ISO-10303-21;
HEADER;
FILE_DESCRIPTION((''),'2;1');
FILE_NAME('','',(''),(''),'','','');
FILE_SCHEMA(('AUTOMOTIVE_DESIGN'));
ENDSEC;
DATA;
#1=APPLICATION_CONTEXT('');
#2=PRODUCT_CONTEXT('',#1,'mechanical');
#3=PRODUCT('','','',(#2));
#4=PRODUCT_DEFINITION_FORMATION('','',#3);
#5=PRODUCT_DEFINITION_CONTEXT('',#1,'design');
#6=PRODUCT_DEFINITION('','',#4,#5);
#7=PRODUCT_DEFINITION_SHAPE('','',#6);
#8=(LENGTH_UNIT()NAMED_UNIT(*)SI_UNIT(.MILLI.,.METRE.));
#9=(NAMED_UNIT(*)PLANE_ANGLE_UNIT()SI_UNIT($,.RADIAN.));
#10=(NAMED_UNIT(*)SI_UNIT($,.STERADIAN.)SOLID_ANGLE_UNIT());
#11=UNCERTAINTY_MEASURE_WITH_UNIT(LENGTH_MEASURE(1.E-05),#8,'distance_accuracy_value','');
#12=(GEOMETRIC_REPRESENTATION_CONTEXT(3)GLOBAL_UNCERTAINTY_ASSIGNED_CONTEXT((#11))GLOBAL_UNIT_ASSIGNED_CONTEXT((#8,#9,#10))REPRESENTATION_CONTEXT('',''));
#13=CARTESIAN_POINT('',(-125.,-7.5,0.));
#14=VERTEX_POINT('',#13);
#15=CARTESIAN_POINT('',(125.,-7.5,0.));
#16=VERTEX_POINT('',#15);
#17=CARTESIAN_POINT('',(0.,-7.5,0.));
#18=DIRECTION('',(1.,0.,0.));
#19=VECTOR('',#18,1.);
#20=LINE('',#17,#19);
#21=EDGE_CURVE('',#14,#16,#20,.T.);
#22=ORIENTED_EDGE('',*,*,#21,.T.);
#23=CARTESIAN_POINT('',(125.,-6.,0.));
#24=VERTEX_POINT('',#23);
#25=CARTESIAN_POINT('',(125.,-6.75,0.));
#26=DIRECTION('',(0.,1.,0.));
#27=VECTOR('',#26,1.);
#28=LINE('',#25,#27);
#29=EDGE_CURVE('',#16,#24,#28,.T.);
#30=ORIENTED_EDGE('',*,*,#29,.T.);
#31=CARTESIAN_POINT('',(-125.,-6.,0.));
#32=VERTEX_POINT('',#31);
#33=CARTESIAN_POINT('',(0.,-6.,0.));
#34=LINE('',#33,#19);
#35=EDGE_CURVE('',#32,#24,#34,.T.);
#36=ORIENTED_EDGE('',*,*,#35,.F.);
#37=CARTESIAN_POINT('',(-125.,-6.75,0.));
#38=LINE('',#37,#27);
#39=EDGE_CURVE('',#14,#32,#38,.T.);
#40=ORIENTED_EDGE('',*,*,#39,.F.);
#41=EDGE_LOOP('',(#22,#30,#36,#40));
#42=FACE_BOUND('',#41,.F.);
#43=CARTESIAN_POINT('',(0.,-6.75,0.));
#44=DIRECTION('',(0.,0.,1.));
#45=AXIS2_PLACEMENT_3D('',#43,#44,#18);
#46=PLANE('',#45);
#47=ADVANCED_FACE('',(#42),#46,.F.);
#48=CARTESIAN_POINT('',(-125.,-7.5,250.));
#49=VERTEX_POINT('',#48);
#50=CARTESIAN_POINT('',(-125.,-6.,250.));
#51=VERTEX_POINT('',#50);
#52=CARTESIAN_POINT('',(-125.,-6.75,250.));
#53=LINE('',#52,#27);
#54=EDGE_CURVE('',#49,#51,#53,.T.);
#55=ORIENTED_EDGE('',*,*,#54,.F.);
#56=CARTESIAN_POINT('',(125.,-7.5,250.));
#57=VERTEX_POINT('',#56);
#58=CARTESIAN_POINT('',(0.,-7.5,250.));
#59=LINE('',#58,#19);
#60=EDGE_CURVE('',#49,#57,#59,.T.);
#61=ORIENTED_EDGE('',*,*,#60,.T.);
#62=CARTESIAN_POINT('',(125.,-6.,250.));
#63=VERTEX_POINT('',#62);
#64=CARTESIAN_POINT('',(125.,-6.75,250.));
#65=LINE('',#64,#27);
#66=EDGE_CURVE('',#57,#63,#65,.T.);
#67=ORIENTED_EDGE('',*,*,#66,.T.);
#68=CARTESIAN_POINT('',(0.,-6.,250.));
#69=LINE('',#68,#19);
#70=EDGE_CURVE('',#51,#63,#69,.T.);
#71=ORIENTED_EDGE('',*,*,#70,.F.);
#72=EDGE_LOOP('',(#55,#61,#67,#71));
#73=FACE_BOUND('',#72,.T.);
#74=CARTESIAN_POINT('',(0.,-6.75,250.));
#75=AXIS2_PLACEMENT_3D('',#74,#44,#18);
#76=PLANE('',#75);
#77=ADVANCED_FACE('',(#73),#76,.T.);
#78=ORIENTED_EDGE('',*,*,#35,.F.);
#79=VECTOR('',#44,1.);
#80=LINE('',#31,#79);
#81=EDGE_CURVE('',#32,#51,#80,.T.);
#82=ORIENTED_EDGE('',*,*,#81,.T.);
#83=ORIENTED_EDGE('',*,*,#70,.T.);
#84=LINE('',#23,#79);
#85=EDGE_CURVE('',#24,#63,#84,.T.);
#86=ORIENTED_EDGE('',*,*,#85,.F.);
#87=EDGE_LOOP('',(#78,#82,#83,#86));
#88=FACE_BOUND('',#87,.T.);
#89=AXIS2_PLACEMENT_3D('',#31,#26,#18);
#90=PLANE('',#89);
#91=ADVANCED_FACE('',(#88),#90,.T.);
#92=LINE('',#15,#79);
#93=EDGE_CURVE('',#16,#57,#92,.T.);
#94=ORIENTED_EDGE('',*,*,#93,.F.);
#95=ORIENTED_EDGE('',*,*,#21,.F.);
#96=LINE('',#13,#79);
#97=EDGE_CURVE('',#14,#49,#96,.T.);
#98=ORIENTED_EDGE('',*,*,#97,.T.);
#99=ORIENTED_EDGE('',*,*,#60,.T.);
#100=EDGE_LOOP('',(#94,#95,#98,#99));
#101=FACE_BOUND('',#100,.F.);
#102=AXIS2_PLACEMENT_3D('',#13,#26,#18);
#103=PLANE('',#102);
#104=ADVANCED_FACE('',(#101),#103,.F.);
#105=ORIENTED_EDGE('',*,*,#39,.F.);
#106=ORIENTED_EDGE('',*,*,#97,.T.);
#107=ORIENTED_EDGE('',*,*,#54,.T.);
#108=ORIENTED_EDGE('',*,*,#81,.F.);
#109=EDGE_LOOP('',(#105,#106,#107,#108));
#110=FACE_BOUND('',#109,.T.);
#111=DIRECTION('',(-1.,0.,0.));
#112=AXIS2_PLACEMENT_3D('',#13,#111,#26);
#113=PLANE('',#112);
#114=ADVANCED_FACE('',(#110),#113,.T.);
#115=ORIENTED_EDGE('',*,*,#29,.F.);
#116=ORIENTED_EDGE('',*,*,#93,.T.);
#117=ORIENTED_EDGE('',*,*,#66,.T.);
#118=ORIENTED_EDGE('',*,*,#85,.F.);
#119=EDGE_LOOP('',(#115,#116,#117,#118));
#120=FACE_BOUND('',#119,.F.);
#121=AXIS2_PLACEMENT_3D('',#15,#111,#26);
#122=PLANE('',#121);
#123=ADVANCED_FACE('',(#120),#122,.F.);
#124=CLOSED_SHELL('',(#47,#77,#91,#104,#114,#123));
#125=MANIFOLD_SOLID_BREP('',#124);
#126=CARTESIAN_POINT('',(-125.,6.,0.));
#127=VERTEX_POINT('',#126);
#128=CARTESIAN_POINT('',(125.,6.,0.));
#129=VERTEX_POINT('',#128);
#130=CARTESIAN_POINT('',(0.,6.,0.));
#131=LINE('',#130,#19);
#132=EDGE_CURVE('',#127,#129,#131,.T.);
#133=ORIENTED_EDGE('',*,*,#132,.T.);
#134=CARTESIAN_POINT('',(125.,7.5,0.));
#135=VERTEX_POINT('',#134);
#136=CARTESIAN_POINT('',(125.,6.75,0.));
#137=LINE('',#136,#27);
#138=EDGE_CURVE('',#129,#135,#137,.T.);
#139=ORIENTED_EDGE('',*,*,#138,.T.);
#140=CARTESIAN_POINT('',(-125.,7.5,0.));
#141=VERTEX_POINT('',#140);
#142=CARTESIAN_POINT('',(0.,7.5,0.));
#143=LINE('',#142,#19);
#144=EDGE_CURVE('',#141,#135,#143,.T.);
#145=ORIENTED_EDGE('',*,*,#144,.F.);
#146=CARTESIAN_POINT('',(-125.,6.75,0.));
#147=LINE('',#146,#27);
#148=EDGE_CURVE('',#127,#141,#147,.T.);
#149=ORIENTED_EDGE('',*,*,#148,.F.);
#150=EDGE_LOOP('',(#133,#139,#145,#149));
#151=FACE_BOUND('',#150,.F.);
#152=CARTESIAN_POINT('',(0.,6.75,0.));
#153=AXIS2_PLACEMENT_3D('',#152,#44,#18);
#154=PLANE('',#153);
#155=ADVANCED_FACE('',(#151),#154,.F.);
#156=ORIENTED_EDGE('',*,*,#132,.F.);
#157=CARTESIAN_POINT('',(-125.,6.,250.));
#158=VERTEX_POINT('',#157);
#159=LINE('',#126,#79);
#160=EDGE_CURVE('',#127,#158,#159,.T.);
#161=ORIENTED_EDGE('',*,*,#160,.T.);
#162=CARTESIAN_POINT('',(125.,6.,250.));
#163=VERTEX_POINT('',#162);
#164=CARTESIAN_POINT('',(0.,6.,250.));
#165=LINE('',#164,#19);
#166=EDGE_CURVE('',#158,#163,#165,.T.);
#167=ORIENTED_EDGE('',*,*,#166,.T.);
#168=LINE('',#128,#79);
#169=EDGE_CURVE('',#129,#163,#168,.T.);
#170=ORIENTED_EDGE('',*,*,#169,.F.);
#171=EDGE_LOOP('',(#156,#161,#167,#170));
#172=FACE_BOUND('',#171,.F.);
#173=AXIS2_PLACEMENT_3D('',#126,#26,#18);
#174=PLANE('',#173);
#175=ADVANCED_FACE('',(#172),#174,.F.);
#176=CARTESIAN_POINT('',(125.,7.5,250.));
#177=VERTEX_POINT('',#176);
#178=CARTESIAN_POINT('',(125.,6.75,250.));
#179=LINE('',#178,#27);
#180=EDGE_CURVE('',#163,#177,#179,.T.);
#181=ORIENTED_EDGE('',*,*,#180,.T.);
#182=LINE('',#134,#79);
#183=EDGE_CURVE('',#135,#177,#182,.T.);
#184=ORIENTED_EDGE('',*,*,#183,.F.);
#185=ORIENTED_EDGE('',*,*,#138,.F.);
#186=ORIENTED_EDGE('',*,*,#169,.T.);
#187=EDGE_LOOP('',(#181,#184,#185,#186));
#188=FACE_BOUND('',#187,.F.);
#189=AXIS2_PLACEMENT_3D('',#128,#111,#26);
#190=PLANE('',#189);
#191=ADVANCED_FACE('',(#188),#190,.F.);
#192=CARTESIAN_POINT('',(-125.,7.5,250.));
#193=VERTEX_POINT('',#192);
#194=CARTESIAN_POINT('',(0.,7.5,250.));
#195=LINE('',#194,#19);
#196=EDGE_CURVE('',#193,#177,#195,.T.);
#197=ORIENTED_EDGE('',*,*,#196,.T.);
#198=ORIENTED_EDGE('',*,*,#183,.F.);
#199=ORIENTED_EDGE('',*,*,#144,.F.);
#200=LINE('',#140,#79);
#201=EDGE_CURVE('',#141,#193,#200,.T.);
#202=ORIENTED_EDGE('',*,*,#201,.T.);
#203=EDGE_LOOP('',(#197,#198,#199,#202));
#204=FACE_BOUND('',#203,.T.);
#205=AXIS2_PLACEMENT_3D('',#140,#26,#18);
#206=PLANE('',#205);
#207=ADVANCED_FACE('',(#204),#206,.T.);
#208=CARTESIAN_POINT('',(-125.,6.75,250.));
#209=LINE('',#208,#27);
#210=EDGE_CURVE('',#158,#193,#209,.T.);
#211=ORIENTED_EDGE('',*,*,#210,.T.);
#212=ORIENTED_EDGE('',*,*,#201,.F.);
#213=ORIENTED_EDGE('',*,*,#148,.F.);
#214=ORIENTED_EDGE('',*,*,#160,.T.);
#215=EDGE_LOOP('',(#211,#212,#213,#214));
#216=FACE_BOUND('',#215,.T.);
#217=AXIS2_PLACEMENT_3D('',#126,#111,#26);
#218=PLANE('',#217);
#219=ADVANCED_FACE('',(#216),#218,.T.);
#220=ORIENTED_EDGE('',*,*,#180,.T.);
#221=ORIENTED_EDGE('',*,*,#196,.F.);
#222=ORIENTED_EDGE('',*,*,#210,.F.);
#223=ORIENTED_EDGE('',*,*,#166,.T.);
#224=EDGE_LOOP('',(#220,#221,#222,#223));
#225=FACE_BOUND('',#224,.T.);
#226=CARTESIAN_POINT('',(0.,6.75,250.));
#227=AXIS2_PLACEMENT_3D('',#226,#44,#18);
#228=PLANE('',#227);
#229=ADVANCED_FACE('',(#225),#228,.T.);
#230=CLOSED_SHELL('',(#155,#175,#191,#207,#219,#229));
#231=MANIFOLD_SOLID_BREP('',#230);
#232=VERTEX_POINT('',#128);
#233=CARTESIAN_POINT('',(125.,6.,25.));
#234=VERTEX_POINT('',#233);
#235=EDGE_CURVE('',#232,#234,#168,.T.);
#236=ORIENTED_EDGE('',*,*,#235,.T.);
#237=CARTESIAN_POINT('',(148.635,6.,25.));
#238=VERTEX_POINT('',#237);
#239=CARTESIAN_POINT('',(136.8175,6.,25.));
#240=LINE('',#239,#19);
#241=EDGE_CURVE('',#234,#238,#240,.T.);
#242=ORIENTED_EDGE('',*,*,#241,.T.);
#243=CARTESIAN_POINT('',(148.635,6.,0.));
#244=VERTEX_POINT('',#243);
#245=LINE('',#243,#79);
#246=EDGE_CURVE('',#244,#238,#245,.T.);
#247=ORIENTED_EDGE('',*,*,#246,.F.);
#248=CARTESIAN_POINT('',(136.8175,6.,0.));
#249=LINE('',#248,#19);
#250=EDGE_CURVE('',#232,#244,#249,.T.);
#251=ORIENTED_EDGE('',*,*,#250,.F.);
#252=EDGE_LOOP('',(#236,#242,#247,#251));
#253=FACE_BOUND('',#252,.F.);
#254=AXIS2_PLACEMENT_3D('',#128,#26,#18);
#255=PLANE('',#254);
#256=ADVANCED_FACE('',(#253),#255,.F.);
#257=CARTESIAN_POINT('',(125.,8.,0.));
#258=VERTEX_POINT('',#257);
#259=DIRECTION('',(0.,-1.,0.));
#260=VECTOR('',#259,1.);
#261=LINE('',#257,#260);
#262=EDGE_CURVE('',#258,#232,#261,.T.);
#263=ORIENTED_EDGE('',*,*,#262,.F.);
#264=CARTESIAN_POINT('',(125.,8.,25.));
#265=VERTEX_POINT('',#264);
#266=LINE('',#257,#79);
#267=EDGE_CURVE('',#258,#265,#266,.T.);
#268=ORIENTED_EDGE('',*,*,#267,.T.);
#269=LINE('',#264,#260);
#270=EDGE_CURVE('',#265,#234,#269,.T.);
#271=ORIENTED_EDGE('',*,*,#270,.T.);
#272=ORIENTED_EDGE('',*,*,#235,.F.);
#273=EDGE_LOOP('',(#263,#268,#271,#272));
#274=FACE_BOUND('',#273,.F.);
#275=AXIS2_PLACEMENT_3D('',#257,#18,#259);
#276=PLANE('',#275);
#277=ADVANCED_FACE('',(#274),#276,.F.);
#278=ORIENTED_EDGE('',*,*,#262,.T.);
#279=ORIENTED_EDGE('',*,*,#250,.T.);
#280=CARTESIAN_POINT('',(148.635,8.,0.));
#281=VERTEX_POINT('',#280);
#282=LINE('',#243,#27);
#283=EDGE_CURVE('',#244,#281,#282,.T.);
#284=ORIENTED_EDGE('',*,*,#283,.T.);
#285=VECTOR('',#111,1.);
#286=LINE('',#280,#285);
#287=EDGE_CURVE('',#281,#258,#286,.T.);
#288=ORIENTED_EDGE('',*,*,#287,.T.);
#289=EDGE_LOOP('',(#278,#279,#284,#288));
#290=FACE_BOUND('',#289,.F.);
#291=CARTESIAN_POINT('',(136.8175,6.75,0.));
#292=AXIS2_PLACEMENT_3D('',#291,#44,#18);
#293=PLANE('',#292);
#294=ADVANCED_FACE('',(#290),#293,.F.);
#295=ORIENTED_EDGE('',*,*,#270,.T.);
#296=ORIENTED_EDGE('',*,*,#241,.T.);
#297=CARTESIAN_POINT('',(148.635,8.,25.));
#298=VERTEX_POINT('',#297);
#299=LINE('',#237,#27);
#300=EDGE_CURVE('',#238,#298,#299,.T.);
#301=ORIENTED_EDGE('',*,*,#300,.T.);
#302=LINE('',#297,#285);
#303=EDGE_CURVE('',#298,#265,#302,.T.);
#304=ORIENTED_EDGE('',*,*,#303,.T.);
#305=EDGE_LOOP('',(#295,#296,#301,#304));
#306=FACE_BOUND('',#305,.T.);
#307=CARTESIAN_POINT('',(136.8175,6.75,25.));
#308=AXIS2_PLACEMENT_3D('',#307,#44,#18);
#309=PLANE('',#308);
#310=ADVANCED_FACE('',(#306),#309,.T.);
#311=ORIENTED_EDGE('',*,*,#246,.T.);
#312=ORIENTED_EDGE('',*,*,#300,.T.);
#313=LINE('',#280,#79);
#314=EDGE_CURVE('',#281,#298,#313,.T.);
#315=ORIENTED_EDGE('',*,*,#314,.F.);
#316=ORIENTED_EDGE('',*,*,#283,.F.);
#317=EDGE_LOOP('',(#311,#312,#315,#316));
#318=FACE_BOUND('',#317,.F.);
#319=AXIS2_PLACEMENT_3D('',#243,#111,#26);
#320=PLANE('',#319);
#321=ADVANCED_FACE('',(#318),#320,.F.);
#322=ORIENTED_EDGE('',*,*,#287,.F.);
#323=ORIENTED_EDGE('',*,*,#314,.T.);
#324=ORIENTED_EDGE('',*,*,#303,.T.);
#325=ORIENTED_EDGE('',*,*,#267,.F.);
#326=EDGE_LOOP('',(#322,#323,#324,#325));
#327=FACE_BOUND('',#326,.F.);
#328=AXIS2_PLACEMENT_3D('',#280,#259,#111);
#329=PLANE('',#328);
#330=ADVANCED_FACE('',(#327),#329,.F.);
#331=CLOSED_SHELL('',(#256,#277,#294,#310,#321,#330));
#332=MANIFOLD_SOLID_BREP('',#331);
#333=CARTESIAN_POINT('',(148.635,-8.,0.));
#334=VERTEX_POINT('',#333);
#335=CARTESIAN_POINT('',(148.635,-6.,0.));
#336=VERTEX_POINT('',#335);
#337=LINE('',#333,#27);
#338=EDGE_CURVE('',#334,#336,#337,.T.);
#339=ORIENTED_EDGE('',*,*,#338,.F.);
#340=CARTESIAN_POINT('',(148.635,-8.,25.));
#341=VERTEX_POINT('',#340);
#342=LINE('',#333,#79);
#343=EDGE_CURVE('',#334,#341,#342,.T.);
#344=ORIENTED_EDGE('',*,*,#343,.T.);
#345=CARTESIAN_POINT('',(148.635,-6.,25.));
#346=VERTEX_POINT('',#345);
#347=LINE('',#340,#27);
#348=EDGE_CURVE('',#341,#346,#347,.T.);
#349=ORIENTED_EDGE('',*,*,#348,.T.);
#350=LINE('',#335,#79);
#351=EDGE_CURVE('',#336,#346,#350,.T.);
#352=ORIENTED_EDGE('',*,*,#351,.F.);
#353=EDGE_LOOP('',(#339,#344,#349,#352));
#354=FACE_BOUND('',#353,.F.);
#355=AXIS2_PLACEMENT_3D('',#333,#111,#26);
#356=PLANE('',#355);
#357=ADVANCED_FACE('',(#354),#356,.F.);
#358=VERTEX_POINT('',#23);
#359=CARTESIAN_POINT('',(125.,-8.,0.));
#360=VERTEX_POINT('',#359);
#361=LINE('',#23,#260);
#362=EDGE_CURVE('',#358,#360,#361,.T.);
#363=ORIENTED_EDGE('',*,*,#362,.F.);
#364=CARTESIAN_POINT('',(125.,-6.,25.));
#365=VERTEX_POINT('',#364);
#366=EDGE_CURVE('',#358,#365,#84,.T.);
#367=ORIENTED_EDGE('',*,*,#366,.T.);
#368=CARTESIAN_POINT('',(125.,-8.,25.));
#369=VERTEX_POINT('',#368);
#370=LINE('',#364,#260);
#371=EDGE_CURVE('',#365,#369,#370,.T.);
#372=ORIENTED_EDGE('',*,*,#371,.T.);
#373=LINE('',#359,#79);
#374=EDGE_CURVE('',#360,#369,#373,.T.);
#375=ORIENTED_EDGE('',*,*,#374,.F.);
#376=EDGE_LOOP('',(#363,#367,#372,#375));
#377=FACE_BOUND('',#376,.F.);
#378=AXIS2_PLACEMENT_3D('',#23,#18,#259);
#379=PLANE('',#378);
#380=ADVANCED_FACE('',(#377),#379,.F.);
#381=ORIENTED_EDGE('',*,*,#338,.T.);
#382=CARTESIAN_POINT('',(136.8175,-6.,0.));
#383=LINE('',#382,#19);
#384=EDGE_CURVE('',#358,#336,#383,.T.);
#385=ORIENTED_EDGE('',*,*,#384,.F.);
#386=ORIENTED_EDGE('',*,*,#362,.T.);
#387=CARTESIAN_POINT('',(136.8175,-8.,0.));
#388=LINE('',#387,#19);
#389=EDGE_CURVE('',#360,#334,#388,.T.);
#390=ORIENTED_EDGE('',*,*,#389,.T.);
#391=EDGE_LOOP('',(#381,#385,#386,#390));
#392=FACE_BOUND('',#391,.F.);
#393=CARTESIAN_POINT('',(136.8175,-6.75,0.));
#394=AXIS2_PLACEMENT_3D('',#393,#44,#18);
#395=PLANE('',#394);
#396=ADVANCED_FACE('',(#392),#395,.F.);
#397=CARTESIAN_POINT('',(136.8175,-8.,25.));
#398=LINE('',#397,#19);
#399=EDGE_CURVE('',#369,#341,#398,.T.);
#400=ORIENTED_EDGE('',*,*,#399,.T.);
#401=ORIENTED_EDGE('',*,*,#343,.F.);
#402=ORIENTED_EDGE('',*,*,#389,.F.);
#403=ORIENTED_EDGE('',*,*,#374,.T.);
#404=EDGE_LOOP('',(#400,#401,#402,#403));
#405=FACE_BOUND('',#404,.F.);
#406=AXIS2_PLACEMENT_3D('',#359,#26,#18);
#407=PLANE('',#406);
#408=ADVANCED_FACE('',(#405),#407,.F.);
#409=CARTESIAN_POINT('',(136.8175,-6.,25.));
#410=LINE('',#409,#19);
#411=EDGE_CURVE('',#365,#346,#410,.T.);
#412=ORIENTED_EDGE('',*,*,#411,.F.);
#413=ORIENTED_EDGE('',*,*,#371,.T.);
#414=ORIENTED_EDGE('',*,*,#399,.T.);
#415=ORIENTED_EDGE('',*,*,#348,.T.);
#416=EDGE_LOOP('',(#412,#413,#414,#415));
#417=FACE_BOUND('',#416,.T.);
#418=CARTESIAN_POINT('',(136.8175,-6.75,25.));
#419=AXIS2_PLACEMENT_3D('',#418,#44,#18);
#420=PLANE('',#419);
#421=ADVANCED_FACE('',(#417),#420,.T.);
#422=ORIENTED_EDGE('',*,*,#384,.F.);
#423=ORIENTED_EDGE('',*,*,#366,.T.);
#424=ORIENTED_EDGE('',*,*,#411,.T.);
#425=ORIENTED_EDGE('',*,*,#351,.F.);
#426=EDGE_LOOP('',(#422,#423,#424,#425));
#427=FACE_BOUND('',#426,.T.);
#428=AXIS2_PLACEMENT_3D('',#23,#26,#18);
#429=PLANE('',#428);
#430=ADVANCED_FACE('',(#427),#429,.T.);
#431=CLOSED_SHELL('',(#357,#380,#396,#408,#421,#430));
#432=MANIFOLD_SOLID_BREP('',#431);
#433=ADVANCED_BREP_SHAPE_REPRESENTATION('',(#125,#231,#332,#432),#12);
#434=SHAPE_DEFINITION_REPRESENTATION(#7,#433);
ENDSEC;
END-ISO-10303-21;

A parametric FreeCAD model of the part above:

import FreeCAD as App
import Part
import Sketcher
Q = App.Units.Quantity

doc = App.newDocument("Part")
body = doc.addObject("PartDesign::Body", "Body")
body.AllowCompound = True

sketch1 = body.newObject("Sketcher::SketchObject", "Sketch")
sketch1.AttachmentSupport = (doc.getObject("XY_Plane"), [""])
sketch1.MapMode = "FlatFace"
sketch1.addGeometry(Part.LineSegment(App.Vector(-125, -6, 0), App.Vector(-125, -7.5, 0)), False)
sketch1.addGeometry(Part.LineSegment(App.Vector(-125, -7.5, 0), App.Vector(125, -7.5, 0)), False)
sketch1.addGeometry(Part.LineSegment(App.Vector(125, -7.5, 0), App.Vector(125, -6, 0)), False)
sketch1.addGeometry(Part.LineSegment(App.Vector(125, -6, 0), App.Vector(-125, -6, 0)), False)
sketch1.addGeometry(Part.LineSegment(App.Vector(-125, 7.5, 0), App.Vector(-125, 6, 0)), False)
sketch1.addGeometry(Part.LineSegment(App.Vector(-125, 6, 0), App.Vector(125, 6, 0)), False)
sketch1.addGeometry(Part.LineSegment(App.Vector(125, 6, 0), App.Vector(125, 7.5, 0)), False)
sketch1.addGeometry(Part.LineSegment(App.Vector(125, 7.5, 0), App.Vector(-125, 7.5, 0)), False)
sketch1.addConstraint(Sketcher.Constraint("Coincident", 0, 2, 1, 1))
sketch1.addConstraint(Sketcher.Constraint("Coincident", 1, 2, 2, 1))
sketch1.addConstraint(Sketcher.Constraint("Coincident", 2, 2, 3, 1))
sketch1.addConstraint(Sketcher.Constraint("Coincident", 3, 2, 0, 1))
sketch1.addConstraint(Sketcher.Constraint("Coincident", 4, 2, 5, 1))
sketch1.addConstraint(Sketcher.Constraint("Coincident", 5, 2, 6, 1))
sketch1.addConstraint(Sketcher.Constraint("Coincident", 6, 2, 7, 1))
sketch1.addConstraint(Sketcher.Constraint("Coincident", 7, 2, 4, 1))
sketch1.addConstraint(Sketcher.Constraint("Vertical", 0))
sketch1.addConstraint(Sketcher.Constraint("Horizontal", 1))
sketch1.addConstraint(Sketcher.Constraint("Vertical", 2))
sketch1.addConstraint(Sketcher.Constraint("Horizontal", 3))
sketch1.addConstraint(Sketcher.Constraint("Vertical", 4))
sketch1.addConstraint(Sketcher.Constraint("Horizontal", 5))
sketch1.addConstraint(Sketcher.Constraint("Vertical", 6))
sketch1.addConstraint(Sketcher.Constraint("Horizontal", 7))
sketch1.addConstraint(Sketcher.Constraint("Symmetric", 2, 2, 4, 2, -1, 1))
sketch1.addConstraint(Sketcher.Constraint("Symmetric", 0, 2, 6, 2, -1, 1))
sketch1.addConstraint(Sketcher.Constraint("Vertical", 3, 2, 4, 2))
sketch1.addConstraint(Sketcher.Constraint("DistanceX", 1, 1, 1, 2, Q("250 mm")))
sketch1.addConstraint(Sketcher.Constraint("DistanceY", 0, 2, 0, 1, Q("1.5 mm")))
sketch1.addConstraint(Sketcher.Constraint("DistanceY", 2, 2, -1, 1, Q("6 mm")))
pad1 = body.newObject("PartDesign::Pad", "Pad")
pad1.Profile = sketch1
pad1.Length = 250
body2 = doc.addObject("PartDesign::Body", "Body001")
body2.AllowCompound = True

sketch2 = body2.newObject("Sketcher::SketchObject", "Sketch001")
sketch2.AttachmentSupport = (doc.getObject("XY_Plane001"), [""])
sketch2.MapMode = "FlatFace"
sketch2.addGeometry(Part.LineSegment(App.Vector(125, 6, 0), App.Vector(148.6, 6, 0)), False)
sketch2.addGeometry(Part.LineSegment(App.Vector(148.6, 6, 0), App.Vector(148.6, 8, 0)), False)
sketch2.addGeometry(Part.LineSegment(App.Vector(148.6, 8, 0), App.Vector(125, 8, 0)), False)
sketch2.addGeometry(Part.LineSegment(App.Vector(125, 8, 0), App.Vector(125, 6, 0)), False)
sketch2.addGeometry(Part.LineSegment(App.Vector(125, -6, 0), App.Vector(125, -8, 0)), False)
sketch2.addGeometry(Part.LineSegment(App.Vector(125, -8, 0), App.Vector(148.6, -8, 0)), False)
sketch2.addGeometry(Part.LineSegment(App.Vector(148.6, -8, 0), App.Vector(148.6, -6, 0)), False)
sketch2.addGeometry(Part.LineSegment(App.Vector(148.6, -6, 0), App.Vector(125, -6, 0)), False)
sketch2.addConstraint(Sketcher.Constraint("Coincident", 0, 2, 1, 1))
sketch2.addConstraint(Sketcher.Constraint("Coincident", 1, 2, 2, 1))
sketch2.addConstraint(Sketcher.Constraint("Coincident", 2, 2, 3, 1))
sketch2.addConstraint(Sketcher.Constraint("Coincident", 3, 2, 0, 1))
sketch2.addConstraint(Sketcher.Constraint("Coincident", 4, 2, 5, 1))
sketch2.addConstraint(Sketcher.Constraint("Coincident", 5, 2, 6, 1))
sketch2.addConstraint(Sketcher.Constraint("Coincident", 6, 2, 7, 1))
sketch2.addConstraint(Sketcher.Constraint("Coincident", 7, 2, 4, 1))
sketch2.addConstraint(Sketcher.Constraint("Horizontal", 0))
sketch2.addConstraint(Sketcher.Constraint("Vertical", 1))
sketch2.addConstraint(Sketcher.Constraint("Horizontal", 2))
sketch2.addConstraint(Sketcher.Constraint("Vertical", 3))
sketch2.addConstraint(Sketcher.Constraint("Vertical", 4))
sketch2.addConstraint(Sketcher.Constraint("Horizontal", 5))
sketch2.addConstraint(Sketcher.Constraint("Vertical", 6))
sketch2.addConstraint(Sketcher.Constraint("Horizontal", 7))
sketch2.addConstraint(Sketcher.Constraint("Symmetric", 2, 2, 4, 2, -1))
sketch2.addConstraint(Sketcher.Constraint("Symmetric", 0, 2, 6, 2, -1))
sketch2.addConstraint(Sketcher.Constraint("DistanceY", 1, 1, 1, 2, Q("2 mm")))
sketch2.addConstraint(Sketcher.Constraint("DistanceY", -1, 1, 0, 2, Q("6 mm")))
sketch2.addConstraint(Sketcher.Constraint("DistanceX", -1, 1, 2, 2, Q("125 mm")))
sketch2.addConstraint(Sketcher.Constraint("DistanceX", 0, 1, 0, 2, Q("23.635 mm")))
pad2 = body2.newObject("PartDesign::Pad", "Pad001")
pad2.Profile = sketch2
pad2.Length = 25

doc.recompute()
